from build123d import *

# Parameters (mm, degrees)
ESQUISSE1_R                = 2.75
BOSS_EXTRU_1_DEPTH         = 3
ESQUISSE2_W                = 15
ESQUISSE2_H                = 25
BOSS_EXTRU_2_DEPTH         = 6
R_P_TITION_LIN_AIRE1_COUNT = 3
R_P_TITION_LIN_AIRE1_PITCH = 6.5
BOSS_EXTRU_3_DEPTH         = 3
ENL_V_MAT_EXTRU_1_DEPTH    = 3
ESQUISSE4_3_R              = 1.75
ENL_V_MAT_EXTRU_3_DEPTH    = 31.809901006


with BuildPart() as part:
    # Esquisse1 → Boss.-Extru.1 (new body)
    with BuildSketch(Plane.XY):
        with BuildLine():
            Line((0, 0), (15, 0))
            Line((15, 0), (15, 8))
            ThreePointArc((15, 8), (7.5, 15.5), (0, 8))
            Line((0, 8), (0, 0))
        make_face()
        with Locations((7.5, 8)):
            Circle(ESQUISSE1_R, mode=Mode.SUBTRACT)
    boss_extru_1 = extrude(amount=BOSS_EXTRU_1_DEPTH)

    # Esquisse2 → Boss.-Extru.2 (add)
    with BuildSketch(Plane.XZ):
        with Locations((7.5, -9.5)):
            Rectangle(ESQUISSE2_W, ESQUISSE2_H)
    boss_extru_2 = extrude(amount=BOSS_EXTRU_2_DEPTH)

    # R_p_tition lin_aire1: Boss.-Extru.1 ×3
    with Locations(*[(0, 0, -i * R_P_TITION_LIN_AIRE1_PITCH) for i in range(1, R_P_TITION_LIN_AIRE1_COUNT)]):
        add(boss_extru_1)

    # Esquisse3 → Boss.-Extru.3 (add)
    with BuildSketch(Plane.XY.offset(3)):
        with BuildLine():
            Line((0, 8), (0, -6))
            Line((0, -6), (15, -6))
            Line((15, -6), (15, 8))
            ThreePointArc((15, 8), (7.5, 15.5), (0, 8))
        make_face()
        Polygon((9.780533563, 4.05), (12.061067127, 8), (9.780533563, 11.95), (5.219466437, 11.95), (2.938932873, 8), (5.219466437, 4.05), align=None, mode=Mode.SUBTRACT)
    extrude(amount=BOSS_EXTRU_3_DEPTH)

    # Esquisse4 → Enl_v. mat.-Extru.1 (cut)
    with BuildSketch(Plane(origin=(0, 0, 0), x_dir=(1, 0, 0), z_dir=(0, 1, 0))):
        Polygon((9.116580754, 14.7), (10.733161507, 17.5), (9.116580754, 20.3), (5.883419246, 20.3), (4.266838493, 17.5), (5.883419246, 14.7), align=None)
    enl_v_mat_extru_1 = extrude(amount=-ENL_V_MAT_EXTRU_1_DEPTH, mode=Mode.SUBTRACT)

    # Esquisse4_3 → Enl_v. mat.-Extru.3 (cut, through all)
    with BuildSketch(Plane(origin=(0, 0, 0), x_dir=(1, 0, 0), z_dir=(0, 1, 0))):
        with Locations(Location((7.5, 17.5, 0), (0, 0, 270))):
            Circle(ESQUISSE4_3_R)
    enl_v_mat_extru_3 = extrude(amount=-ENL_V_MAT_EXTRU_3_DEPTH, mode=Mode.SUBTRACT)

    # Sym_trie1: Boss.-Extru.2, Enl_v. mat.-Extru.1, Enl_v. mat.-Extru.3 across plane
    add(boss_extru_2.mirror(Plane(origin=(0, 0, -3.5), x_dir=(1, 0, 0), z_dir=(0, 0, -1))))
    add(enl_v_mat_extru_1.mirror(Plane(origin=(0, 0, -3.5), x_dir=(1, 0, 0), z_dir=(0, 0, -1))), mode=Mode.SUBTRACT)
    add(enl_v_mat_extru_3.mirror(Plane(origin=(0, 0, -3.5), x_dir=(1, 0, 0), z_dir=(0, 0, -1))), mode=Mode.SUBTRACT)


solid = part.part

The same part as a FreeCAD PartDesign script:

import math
import FreeCAD as App
import Part
import Sketcher
Q = App.Units.Quantity


def add_polygon(sketch, points):
    """Adds a closed chain of lines whose ends are joined by coincident constraints."""
    first, n = sketch.GeometryCount, len(points)
    for a, b in zip(points, points[1:] + points[:1]):
        sketch.addGeometry(Part.LineSegment(App.Vector(*a, 0), App.Vector(*b, 0)), False)
    for i in range(n):
        sketch.addConstraint(Sketcher.Constraint("Coincident", first + i, 2, first + (i + 1) % n, 1))

doc = App.newDocument("Part")
body = doc.addObject("PartDesign::Body", "Body")

sketch1 = body.newObject("Sketcher::SketchObject", "Sketch")
sketch1.AttachmentSupport = (doc.getObject("XY_Plane"), [""])
sketch1.MapMode = "FlatFace"
sketch1.addGeometry([
    Part.LineSegment(App.Vector(0, 0, 0), App.Vector(15, 0, 0)),
    Part.LineSegment(App.Vector(15, 0, 0), App.Vector(15, 8, 0)),
    Part.ArcOfCircle(Part.Circle(App.Vector(7.5, 8, 0), App.Vector(0, 0, 1), 7.5), math.radians(0), math.radians(180)),
    Part.LineSegment(App.Vector(0, 8, 0), App.Vector(0, 0, 0)),
    Part.Circle(App.Vector(7.5, 8, 0), App.Vector(0, 0, 1), 2.8),
], False)
sketch1.addConstraint([
    Sketcher.Constraint("Coincident", 0, 2, 1, 1),
    Sketcher.Constraint("Tangent", 1, 2, 2, 1),
    Sketcher.Constraint("Tangent", 2, 2, 3, 1),
    Sketcher.Constraint("Coincident", 3, 2, 0, 1),
    Sketcher.Constraint("Horizontal", 0),
    Sketcher.Constraint("Vertical", 1),
    Sketcher.Constraint("Vertical", 3),
    Sketcher.Constraint("Coincident", 3, 2, -1, 1),
    Sketcher.Constraint("Coincident", 4, 3, 2, 3),
    Sketcher.Constraint("Diameter", 4, Q("5.5 mm")),
    Sketcher.Constraint("Radius", 2, Q("7.5 mm")),
    Sketcher.Constraint("DistanceY", 1, 1, 1, 2, Q("8 mm")),
])
pad1 = body.newObject("PartDesign::Pad", "Pad")
pad1.Profile = sketch1
pad1.Length = 3

sketch2 = body.newObject("Sketcher::SketchObject", "Sketch001")
sketch2.AttachmentSupport = (doc.getObject("XZ_Plane"), [""])
sketch2.MapMode = "FlatFace"
add_polygon(sketch2, [(0, 3), (0, -22), (15, -22), (15, 3)])
sketch2.addConstraint([
    Sketcher.Constraint("Vertical", 0),
    Sketcher.Constraint("Horizontal", 1),
    Sketcher.Constraint("Vertical", 2),
    Sketcher.Constraint("Horizontal", 3),
    Sketcher.Constraint("PointOnObject", 0, 2, -2),
    Sketcher.Constraint("DistanceX", 1, 1, 1, 2, Q("15 mm")),
    Sketcher.Constraint("DistanceY", 0, 2, 0, 1, Q("25 mm")),
    Sketcher.Constraint("DistanceY", 0, 2, -1, 1, Q("22 mm")),
])
pad2 = body.newObject("PartDesign::Pad", "Pad001")
pad2.Profile = sketch2
pad2.Length = 6
doc.recompute()

linearpattern = body.newObject("PartDesign::LinearPattern", "LinearPattern")
linearpattern.Originals = [pad1]
linearpattern.Direction = (doc.getObject("Z_Axis"), [""])
linearpattern.Mode = "offset"
linearpattern.Offset = 6.5
linearpattern.Occurrences = 3
linearpattern.Reversed = True
body.Tip = linearpattern

sketch3 = body.newObject("Sketcher::SketchObject", "Sketch002")
sketch3.AttachmentSupport = (doc.getObject("XY_Plane"), [""])
sketch3.MapMode = "FlatFace"
sketch3.AttachmentOffset = App.Placement(App.Vector(0, 0, 3), App.Rotation())
sketch3.addGeometry(Part.LineSegment(App.Vector(0, 8, 0), App.Vector(0, -6, 0)), False)
sketch3.addGeometry(Part.LineSegment(App.Vector(0, -6, 0), App.Vector(15, -6, 0)), False)
sketch3.addGeometry(Part.LineSegment(App.Vector(15, -6, 0), App.Vector(15, 8, 0)), False)
sketch3.addGeometry(Part.ArcOfCircle(Part.Circle(App.Vector(7.5, 8, 0), App.Vector(0, 0, 1), 7.5), math.radians(0), math.radians(180)), False)
add_polygon(sketch3, [(12.1, 8), (9.8, 4), (5.2, 4), (2.9, 8), (5.2, 11.9), (9.8, 11.9)])
sketch3.addConstraint([
    Sketcher.Constraint("Coincident", 0, 2, 1, 1),
    Sketcher.Constraint("Coincident", 1, 2, 2, 1),
    Sketcher.Constraint("Tangent", 2, 2, 3, 1),
    Sketcher.Constraint("Tangent", 3, 2, 0, 1),
    Sketcher.Constraint("Vertical", 0),
    Sketcher.Constraint("Horizontal", 1),
    Sketcher.Constraint("Vertical", 2),
    Sketcher.Constraint("Horizontal", 5),
    Sketcher.Constraint("Horizontal", 8),
    Sketcher.Constraint("PointOnObject", 0, 2, -2),
    Sketcher.Constraint("Parallel", 4, 7),
    Sketcher.Constraint("Parallel", 6, 9),
    Sketcher.Constraint("Horizontal", 3, 2, 6, 2),
    Sketcher.Constraint("Horizontal", 6, 2, 9, 2),
    Sketcher.Constraint("Vertical", 5, 2, 7, 2),
    Sketcher.Constraint("Vertical", 4, 2, 8, 2),
    Sketcher.Constraint("Radius", 3, Q("7.5 mm")),
    Sketcher.Constraint("DistanceY", 0, 2, 0, 1, Q("14 mm")),
    Sketcher.Constraint("Angle", 4, Q("-120 deg")),
    Sketcher.Constraint("DistanceY", -1, 1, 3, 3, Q("8 mm")),
    Sketcher.Constraint("DistanceY", 5, 2, 7, 2, Q("7.9 mm")),
    Sketcher.Constraint("DistanceX", 6, 2, 4, 2, Q("6.841601 mm")),
    Sketcher.Constraint("DistanceX", -1, 1, 4, 2, Q("9.780534 mm")),
])
pad3 = body.newObject("PartDesign::Pad", "Pad002")
pad3.Profile = sketch3
pad3.Length = 3

sketch4 = body.newObject("Sketcher::SketchObject", "Sketch003")
sketch4.AttachmentSupport = (doc.getObject("XZ_Plane"), [""])
sketch4.MapMode = "FlatFace"
add_polygon(sketch4, [(9.1, -14.7), (10.7, -17.5), (9.1, -20.3), (5.9, -20.3), (4.3, -17.5), (5.9, -14.7)])
sketch4.addConstraint([
    Sketcher.Constraint("Horizontal", 2),
    Sketcher.Constraint("Horizontal", 5),
    Sketcher.Constraint("Parallel", 0, 3),
    Sketcher.Constraint("Parallel", 1, 4),
    Sketcher.Constraint("Horizontal", 0, 2, 3, 2),
    Sketcher.Constraint("Vertical", 2, 2, 4, 2),
    Sketcher.Constraint("Vertical", 1, 2, 5, 2),
    Sketcher.Constraint("Angle", 0, Q("-60 deg")),
    Sketcher.Constraint("DistanceY", 0, 2, -1, 1, Q("17.5 mm")),
    Sketcher.Constraint("DistanceY", 1, 2, -1, 1, Q("20.3 mm")),
    Sketcher.Constraint("DistanceX", 2, 2, 2, 1, Q("3.233162 mm")),
    Sketcher.Constraint("DistanceX", -1, 1, 0, 2, Q("10.733162 mm")),
])
pocket1 = body.newObject("PartDesign::Pocket", "Pocket")
pocket1.Profile = sketch4
pocket1.Length = 3
pocket1.Reversed = True

sketch5 = body.newObject("Sketcher::SketchObject", "Sketch004")
sketch5.AttachmentSupport = (doc.getObject("XZ_Plane"), [""])
sketch5.MapMode = "FlatFace"
sketch5.addGeometry(Part.Circle(App.Vector(7.5, -17.5, 0), App.Vector(0, 0, 1), 1.8), False)
sketch5.addConstraint([
    Sketcher.Constraint("Diameter", 0, Q("3.5 mm")),
    Sketcher.Constraint("DistanceX", -1, 1, 0, 3, Q("7.5 mm")),
    Sketcher.Constraint("DistanceY", 0, 3, -1, 1, Q("17.5 mm")),
])
pocket2 = body.newObject("PartDesign::Pocket", "Pocket001")
pocket2.Profile = sketch5
pocket2.Type = "ThroughAll"
pocket2.Reversed = True
doc.recompute()

datumplane = body.newObject("PartDesign::Plane", "DatumPlane")
datumplane.AttachmentSupport = (doc.getObject("XY_Plane"), [""])
datumplane.MapMode = "FlatFace"
datumplane.AttachmentOffset = App.Placement(App.Vector(0, 0, -3.5), App.Rotation())
mirrored = body.newObject("PartDesign::Mirrored", "Mirrored")
mirrored.Originals = [pad2, pocket1, pocket2]
mirrored.MirrorPlane = (datumplane, [""])
body.Tip = mirrored

doc.recompute()
